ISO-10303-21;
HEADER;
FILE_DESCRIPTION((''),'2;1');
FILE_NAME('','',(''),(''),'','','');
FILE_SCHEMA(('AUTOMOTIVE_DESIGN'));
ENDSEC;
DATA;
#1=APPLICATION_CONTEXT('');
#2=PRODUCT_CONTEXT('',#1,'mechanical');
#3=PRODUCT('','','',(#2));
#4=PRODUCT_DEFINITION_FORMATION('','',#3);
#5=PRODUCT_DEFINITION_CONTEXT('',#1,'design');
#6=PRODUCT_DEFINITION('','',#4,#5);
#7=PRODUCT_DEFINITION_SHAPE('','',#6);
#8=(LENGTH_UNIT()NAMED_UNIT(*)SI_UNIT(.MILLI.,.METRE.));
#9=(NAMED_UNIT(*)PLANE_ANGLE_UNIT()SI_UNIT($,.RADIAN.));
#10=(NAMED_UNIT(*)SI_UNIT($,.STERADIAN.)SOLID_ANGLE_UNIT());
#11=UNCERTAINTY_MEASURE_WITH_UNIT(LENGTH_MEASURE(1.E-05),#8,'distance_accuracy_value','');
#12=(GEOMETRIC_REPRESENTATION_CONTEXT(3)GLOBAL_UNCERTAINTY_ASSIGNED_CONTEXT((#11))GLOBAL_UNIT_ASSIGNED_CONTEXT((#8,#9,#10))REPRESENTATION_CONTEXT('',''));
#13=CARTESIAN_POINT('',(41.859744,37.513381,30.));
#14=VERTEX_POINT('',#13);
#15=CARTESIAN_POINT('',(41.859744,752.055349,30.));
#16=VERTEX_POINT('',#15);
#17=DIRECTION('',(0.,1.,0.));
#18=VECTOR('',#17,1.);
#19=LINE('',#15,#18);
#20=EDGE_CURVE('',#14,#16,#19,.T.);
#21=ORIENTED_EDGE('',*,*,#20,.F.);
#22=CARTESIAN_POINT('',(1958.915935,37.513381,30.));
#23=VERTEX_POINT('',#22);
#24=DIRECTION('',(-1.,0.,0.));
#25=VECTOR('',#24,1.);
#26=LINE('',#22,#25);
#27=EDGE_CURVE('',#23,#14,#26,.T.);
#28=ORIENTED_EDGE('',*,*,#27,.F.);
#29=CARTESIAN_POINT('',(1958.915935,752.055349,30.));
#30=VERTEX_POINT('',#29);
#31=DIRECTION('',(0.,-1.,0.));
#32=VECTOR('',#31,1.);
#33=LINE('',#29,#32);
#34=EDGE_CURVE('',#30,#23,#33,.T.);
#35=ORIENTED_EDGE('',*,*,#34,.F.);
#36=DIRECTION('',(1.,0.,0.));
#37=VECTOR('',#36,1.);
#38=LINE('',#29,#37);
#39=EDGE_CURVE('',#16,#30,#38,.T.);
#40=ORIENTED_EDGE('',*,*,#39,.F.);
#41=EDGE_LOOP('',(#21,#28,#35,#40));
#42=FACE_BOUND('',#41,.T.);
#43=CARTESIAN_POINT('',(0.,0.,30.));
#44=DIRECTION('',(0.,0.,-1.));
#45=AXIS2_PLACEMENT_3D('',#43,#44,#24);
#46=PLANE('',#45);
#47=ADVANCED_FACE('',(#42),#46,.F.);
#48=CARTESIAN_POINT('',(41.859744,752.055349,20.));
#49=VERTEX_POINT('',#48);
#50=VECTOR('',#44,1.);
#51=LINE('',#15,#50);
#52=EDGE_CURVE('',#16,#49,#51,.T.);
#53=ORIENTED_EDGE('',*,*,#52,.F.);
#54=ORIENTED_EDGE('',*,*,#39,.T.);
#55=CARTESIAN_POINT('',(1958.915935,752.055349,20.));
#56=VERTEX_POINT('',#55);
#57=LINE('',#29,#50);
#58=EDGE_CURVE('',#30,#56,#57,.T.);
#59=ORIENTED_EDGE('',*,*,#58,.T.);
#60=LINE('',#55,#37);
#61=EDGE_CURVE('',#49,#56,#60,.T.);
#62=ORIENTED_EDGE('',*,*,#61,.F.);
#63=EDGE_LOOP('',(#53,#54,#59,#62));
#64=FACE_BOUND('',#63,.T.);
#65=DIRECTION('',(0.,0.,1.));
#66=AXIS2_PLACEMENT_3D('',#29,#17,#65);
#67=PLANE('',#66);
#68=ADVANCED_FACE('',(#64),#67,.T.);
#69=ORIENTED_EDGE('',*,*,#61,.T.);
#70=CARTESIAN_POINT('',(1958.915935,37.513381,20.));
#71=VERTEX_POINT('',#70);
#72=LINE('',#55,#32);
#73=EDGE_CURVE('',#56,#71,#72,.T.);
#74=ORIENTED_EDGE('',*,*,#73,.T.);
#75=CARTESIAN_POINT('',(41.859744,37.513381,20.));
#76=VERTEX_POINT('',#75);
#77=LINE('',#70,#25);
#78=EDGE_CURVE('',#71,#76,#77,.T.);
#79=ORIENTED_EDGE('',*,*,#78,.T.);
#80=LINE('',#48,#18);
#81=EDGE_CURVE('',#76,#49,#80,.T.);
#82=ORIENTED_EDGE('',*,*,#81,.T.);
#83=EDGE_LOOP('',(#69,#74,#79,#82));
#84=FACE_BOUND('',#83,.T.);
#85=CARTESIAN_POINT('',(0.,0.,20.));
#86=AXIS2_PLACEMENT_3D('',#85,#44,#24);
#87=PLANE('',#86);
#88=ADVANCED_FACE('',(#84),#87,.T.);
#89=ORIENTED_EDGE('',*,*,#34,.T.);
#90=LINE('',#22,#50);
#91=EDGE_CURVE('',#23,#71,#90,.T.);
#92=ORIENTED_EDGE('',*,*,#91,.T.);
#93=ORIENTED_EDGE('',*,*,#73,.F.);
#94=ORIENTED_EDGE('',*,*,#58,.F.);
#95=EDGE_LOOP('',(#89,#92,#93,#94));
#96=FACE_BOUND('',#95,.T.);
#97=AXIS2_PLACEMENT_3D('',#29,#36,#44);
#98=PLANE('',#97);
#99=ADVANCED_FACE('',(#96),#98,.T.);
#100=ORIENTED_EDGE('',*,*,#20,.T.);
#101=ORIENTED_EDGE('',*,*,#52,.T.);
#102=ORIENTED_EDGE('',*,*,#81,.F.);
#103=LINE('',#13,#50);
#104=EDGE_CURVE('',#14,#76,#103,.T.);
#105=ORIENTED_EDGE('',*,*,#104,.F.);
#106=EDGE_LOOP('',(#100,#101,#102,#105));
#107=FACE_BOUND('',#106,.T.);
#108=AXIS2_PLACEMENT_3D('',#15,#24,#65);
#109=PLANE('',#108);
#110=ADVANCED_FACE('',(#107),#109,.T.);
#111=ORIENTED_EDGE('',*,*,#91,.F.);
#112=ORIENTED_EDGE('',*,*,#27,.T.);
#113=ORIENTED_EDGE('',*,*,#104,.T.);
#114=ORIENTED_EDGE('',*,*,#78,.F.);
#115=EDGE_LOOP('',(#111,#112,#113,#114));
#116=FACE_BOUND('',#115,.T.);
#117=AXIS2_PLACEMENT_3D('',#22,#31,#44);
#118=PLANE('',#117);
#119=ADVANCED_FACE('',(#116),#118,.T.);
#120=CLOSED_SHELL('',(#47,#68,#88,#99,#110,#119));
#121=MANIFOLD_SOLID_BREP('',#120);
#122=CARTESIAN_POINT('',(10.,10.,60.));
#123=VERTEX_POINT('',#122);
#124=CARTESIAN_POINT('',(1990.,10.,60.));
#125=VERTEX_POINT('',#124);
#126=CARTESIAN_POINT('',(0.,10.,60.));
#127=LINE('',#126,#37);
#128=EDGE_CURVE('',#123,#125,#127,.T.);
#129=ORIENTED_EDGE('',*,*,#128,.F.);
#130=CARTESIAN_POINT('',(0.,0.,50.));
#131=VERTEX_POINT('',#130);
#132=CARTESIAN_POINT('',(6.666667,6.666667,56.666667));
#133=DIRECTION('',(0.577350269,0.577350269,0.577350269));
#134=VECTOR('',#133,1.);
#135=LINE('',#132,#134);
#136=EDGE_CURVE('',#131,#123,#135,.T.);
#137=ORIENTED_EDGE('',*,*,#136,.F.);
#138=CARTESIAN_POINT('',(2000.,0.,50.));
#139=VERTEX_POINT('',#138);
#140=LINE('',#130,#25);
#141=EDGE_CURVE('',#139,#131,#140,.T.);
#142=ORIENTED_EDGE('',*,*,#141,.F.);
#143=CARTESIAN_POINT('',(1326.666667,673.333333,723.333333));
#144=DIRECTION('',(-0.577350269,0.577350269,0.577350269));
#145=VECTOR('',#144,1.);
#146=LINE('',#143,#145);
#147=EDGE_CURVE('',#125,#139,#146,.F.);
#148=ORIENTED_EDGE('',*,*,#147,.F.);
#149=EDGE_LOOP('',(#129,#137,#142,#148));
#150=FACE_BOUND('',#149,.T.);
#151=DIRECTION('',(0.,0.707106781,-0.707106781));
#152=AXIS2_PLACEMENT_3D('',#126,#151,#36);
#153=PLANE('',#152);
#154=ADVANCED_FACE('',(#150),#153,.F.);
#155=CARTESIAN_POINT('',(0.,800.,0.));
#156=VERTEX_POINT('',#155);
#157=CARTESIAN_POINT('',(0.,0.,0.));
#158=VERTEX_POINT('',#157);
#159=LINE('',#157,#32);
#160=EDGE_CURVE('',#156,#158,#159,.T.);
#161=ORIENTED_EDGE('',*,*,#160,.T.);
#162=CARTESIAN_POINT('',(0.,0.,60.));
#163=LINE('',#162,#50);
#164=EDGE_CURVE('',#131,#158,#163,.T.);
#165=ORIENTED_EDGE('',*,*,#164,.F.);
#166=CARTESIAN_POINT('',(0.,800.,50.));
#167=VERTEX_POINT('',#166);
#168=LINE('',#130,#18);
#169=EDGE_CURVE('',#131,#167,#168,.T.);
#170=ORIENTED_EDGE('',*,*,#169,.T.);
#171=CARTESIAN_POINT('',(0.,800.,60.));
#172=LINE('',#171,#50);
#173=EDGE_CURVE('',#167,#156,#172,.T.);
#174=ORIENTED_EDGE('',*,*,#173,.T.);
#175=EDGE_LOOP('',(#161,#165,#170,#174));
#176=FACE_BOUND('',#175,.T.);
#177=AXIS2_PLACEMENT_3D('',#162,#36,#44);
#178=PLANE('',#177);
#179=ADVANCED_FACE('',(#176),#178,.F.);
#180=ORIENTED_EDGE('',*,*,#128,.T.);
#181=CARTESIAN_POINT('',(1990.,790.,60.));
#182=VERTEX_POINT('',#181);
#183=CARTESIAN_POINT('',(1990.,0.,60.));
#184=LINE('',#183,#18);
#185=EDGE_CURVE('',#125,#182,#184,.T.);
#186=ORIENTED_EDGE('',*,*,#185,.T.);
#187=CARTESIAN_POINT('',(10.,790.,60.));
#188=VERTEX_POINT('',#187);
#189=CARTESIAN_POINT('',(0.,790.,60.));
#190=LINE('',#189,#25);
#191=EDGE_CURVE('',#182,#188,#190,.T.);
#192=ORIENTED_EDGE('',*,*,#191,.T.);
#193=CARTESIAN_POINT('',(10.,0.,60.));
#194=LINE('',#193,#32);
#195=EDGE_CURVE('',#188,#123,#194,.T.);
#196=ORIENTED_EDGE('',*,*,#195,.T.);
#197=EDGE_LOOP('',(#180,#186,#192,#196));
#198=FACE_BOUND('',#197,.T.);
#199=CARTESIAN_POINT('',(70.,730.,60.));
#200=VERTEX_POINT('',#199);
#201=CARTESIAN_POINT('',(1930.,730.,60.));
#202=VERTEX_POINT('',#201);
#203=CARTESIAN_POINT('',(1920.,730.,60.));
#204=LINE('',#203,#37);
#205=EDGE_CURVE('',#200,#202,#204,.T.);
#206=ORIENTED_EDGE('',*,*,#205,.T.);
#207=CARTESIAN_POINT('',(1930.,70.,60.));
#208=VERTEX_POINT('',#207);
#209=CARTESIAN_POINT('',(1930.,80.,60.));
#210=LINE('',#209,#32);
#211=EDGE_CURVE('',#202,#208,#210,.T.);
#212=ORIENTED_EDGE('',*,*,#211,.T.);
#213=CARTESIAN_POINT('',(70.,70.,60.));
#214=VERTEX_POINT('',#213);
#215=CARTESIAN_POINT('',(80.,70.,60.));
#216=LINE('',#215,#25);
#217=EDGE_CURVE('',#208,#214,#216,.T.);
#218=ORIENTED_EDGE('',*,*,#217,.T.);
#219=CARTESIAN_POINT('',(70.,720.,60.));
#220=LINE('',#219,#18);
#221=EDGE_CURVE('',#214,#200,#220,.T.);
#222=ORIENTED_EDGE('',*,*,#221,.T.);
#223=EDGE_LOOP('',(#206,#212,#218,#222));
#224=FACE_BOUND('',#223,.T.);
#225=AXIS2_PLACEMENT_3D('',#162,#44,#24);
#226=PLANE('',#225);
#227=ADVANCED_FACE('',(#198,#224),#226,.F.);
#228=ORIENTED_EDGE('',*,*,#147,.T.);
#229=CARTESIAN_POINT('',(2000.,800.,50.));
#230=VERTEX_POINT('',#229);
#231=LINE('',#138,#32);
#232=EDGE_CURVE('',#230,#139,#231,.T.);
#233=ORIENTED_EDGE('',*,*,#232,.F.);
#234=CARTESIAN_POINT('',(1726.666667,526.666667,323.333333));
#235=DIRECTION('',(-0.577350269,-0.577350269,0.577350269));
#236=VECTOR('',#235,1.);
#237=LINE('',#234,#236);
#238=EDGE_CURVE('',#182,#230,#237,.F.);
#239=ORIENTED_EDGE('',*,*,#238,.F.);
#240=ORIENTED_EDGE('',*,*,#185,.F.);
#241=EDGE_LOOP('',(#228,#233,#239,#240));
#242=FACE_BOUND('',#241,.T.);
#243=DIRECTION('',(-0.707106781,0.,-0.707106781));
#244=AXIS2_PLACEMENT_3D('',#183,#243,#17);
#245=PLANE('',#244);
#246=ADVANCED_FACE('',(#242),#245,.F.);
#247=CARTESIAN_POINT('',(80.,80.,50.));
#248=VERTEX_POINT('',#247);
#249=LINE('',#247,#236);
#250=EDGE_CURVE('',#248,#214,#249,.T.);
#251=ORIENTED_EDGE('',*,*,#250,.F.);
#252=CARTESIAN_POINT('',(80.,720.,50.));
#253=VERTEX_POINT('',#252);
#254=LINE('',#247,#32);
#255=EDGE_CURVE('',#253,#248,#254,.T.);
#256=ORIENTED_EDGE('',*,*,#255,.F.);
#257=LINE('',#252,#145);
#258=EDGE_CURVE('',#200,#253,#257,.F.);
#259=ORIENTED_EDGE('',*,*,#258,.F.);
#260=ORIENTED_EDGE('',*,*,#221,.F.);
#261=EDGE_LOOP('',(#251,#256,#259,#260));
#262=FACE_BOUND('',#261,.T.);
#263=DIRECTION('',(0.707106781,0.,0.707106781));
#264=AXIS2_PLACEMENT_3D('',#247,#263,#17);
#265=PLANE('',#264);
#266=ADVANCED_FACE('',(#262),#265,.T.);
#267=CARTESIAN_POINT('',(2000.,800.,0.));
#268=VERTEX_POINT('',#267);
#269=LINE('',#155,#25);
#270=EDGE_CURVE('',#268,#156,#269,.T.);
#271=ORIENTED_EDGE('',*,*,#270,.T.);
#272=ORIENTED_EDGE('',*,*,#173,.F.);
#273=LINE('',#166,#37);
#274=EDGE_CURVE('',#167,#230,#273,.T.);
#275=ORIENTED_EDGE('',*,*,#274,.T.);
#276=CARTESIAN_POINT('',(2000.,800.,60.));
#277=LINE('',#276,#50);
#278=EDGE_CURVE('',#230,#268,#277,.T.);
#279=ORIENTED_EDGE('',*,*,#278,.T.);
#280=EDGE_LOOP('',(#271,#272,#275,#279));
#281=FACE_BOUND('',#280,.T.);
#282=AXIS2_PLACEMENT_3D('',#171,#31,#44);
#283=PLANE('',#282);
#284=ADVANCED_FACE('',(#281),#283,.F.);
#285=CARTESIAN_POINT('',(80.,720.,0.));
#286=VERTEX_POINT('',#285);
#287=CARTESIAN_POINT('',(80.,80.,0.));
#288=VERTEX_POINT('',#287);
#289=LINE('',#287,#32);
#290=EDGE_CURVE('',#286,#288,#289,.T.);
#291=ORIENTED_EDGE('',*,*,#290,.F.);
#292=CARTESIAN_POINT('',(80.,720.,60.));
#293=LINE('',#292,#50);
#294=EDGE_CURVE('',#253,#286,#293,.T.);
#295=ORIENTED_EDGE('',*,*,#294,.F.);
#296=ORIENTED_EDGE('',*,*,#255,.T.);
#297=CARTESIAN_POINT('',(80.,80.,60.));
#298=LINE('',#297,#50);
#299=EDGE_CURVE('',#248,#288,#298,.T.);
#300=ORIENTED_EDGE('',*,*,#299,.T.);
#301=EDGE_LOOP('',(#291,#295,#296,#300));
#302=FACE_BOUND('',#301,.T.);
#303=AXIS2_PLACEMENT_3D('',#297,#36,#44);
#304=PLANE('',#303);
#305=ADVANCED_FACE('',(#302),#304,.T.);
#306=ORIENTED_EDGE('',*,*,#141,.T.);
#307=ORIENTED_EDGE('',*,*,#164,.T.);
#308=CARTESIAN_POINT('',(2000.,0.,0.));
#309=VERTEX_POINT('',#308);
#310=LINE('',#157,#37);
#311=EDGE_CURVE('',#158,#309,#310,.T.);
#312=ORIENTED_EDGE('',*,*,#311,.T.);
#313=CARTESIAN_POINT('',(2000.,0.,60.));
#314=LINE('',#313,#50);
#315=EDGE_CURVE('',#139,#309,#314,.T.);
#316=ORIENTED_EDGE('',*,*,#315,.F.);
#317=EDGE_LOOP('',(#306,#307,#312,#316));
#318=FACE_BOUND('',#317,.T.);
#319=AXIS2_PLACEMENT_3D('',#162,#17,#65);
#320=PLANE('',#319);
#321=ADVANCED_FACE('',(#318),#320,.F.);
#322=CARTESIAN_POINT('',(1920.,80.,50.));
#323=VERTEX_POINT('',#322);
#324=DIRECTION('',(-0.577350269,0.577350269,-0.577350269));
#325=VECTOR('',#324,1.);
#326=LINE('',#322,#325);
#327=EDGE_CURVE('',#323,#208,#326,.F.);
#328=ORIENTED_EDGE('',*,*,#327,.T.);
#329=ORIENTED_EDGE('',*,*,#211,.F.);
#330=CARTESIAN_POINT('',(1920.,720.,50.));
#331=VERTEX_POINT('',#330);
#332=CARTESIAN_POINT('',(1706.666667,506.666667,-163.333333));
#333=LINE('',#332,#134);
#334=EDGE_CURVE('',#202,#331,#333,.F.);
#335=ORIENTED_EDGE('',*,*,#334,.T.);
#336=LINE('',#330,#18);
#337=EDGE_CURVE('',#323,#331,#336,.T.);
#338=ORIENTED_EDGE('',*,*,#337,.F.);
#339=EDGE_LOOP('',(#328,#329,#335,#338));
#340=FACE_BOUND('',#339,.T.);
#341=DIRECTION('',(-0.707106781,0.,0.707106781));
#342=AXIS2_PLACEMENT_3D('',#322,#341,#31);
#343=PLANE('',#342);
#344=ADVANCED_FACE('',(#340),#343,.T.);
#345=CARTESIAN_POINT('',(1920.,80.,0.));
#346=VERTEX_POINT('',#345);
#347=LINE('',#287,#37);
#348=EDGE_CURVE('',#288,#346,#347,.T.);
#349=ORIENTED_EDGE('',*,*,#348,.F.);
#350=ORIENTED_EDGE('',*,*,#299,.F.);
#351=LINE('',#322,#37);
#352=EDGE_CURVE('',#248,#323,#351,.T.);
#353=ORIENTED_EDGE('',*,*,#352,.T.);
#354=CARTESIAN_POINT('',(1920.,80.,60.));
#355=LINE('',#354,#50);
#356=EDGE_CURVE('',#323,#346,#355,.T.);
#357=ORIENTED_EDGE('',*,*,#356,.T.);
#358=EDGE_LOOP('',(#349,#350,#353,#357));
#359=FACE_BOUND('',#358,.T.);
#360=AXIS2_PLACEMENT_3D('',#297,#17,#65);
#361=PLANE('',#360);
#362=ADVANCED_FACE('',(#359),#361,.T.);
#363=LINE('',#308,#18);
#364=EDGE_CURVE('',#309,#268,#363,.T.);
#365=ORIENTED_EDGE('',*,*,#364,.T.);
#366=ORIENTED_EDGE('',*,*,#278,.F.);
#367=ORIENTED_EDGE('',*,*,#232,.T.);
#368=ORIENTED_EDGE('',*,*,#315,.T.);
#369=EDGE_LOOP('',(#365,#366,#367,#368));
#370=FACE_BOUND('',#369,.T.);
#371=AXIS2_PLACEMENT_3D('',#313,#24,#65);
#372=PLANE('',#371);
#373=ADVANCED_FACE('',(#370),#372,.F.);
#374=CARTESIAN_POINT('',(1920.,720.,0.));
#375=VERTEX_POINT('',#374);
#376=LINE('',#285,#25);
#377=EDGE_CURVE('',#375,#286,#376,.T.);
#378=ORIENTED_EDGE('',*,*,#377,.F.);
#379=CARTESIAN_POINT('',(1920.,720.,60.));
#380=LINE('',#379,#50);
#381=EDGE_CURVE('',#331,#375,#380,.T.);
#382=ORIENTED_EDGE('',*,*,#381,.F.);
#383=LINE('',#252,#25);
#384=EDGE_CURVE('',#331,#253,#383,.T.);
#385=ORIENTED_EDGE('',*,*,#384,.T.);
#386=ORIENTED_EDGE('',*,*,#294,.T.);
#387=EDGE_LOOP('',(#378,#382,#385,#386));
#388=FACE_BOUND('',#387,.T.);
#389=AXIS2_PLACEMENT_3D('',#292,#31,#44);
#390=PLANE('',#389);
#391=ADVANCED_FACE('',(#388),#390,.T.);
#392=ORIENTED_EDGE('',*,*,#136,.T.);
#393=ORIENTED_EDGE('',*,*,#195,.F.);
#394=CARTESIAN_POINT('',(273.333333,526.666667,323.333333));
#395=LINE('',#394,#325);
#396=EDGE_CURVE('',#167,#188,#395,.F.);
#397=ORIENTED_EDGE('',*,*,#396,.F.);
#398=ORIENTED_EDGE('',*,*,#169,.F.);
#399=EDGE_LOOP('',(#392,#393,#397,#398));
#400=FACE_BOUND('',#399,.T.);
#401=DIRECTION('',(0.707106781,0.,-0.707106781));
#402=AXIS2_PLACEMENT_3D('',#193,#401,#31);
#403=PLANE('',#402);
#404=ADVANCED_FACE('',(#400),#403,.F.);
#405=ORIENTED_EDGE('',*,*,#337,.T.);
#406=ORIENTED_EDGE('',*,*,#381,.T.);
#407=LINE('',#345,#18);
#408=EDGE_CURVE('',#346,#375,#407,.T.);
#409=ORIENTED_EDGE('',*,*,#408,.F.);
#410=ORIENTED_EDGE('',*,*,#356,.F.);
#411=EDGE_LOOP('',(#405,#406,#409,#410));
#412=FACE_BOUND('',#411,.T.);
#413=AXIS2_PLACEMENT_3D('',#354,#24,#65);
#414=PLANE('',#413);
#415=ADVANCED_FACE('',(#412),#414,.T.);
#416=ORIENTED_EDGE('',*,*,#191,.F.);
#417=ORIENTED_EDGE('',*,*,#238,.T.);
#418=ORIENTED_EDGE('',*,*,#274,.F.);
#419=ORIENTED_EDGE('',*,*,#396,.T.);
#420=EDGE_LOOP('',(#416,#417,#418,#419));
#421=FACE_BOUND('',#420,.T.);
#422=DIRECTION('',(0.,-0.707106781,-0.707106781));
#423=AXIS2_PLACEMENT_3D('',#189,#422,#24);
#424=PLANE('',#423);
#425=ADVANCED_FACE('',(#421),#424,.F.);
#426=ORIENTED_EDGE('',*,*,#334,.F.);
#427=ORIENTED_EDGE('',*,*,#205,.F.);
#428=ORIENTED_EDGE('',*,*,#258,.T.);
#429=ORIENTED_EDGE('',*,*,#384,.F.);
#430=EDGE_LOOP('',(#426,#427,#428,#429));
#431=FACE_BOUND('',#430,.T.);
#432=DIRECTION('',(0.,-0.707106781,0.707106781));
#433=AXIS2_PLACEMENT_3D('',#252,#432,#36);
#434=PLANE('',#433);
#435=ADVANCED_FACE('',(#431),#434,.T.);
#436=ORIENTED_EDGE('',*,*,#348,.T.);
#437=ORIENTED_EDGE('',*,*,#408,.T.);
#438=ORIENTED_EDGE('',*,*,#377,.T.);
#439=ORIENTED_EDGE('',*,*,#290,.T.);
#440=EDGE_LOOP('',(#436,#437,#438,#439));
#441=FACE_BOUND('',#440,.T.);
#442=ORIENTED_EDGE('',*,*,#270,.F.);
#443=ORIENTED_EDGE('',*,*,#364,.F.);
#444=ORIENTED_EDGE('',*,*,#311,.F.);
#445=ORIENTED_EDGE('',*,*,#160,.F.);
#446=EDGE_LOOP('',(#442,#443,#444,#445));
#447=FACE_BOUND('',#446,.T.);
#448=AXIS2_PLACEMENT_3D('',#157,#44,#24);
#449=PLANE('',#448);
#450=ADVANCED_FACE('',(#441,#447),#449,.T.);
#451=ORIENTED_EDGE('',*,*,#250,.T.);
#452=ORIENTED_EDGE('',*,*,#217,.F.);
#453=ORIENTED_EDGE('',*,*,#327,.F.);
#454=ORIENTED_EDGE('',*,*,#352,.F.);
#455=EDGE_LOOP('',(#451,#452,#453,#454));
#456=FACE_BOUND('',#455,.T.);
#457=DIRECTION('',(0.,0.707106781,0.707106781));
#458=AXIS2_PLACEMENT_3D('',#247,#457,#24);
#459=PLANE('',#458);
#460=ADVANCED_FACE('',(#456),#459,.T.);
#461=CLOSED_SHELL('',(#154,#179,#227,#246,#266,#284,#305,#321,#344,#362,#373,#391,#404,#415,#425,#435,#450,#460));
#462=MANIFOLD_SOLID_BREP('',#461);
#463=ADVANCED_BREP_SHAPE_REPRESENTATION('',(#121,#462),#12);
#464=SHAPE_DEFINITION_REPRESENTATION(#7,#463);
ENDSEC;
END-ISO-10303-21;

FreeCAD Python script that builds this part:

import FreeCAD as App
import Part
import Sketcher
from FreeCAD import Vector


def edges_at(feature, points):
    """Names of the edges that pass closest to the given points."""
    edges = feature.Shape.Edges
    near = lambda p: min(range(len(edges)), key=lambda i: edges[i].distToShape(Part.Vertex(*p))[0])
    return sorted({f"Edge{near(p) + 1}" for p in points})


def add_polygon(sketch, points):
    """Adds a closed chain of lines whose ends are joined by coincident constraints."""
    first, n = sketch.GeometryCount, len(points)
    for a, b in zip(points, points[1:] + points[:1]):
        sketch.addGeometry(Part.LineSegment(App.Vector(*a, 0), App.Vector(*b, 0)), False)
    for i in range(n):
        sketch.addConstraint(Sketcher.Constraint("Coincident", first + i, 2, first + (i + 1) % n, 1))

doc = App.newDocument("Part")
params = doc.addObject("Spreadsheet::Sheet", "Params")
for row, (alias, value) in enumerate([
    ("sketch1_width", "2000 mm"),
    ("sketch1_width2", "1840 mm"),
    ("sketch1_height", "800 mm"),
    ("sketch1_height2", "640 mm"),
    ("pad1_length", "60 mm"),
    ("chamfer_size", "10 mm"),
    ("pad2_length", "10 mm"),
], start=1):
    params.set(f"A{row}", alias)
    params.set(f"B{row}", "=" + value)
    params.setAlias(f"B{row}", alias)

body = doc.addObject("PartDesign::Body", "Body")

sketch1 = body.newObject("Sketcher::SketchObject", "Sketch")
sketch1.AttachmentSupport = (doc.getObject("XY_Plane"), [""])
sketch1.MapMode = "FlatFace"
add_polygon(sketch1, [(0, 800), (0, 0), (2000, 0), (2000, 800)])
add_polygon(sketch1, [(1920, 80), (80, 80), (80, 720), (1920, 720)])
sketch1.addConstraint(Sketcher.Constraint("Vertical", 0))
sketch1.addConstraint(Sketcher.Constraint("Horizontal", 1))
sketch1.addConstraint(Sketcher.Constraint("Vertical", 2))
sketch1.addConstraint(Sketcher.Constraint("Horizontal", 3))
sketch1.addConstraint(Sketcher.Constraint("Horizontal", 4))
sketch1.addConstraint(Sketcher.Constraint("Vertical", 5))
sketch1.addConstraint(Sketcher.Constraint("Horizontal", 6))
sketch1.addConstraint(Sketcher.Constraint("Vertical", 7))
sketch1.addConstraint(Sketcher.Constraint("Coincident", 0, 2, -1, 1))
sketch1.addConstraint(Sketcher.Constraint("DistanceX", 1, 1, 1, 2, 2000.0))
sketch1.addConstraint(Sketcher.Constraint("DistanceX", 4, 2, 4, 1, 1840.0))
sketch1.addConstraint(Sketcher.Constraint("DistanceY", 0, 2, 0, 1, 800.0))
sketch1.addConstraint(Sketcher.Constraint("DistanceY", 5, 1, 5, 2, 640.0))
sketch1.addConstraint(Sketcher.Constraint("DistanceX", -1, 1, 4, 2, 80.0))
sketch1.addConstraint(Sketcher.Constraint("DistanceY", -1, 1, 4, 2, 80.0))
sketch1.setExpression("Constraints[17]", "Params.sketch1_width")
sketch1.setExpression("Constraints[18]", "Params.sketch1_width2")
sketch1.setExpression("Constraints[19]", "Params.sketch1_height")
sketch1.setExpression("Constraints[20]", "Params.sketch1_height2")
pad1 = body.newObject("PartDesign::Pad", "Pad")
pad1.Profile = sketch1
pad1.setExpression("Length", "Params.pad1_length")
doc.recompute()

chamfer = body.newObject("PartDesign::Chamfer", "Chamfer")
chamfer.Base = (pad1, edges_at(pad1, [
    (2000, 400, 60),
    (1000, 80, 60),
    (1000, 800, 60),
    (1920, 400, 60),
    (1000, 720, 60),
    (80, 400, 60),
    (0, 400, 60),
    (1000, 0, 60),
]))
chamfer.setExpression("Size", "Params.chamfer_size")
body2 = doc.addObject("PartDesign::Body", "Body001")

sketch2 = body2.newObject("Sketcher::SketchObject", "Sketch001")
sketch2.AttachmentSupport = (doc.getObject("XY_Plane001"), [""])
sketch2.MapMode = "FlatFace"
sketch2.AttachmentOffset = App.Placement(Vector(0, 0, 20), App.Rotation())
add_polygon(sketch2, [(1959, 752), (1959, 38), (42, 38), (42, 752)])
sketch2.addConstraint(Sketcher.Constraint("Vertical", 0))
sketch2.addConstraint(Sketcher.Constraint("Horizontal", 1))
sketch2.addConstraint(Sketcher.Constraint("Vertical", 2))
sketch2.addConstraint(Sketcher.Constraint("Horizontal", 3))
sketch2.addConstraint(Sketcher.Constraint("DistanceX", 1, 2, 1, 1, 1917.056191))
sketch2.addConstraint(Sketcher.Constraint("DistanceY", 0, 2, 0, 1, 714.541967))
sketch2.addConstraint(Sketcher.Constraint("DistanceY", -1, 1, 0, 2, 37.513381))
sketch2.addConstraint(Sketcher.Constraint("DistanceX", -1, 1, 0, 2, 1958.915935))
pad2 = body2.newObject("PartDesign::Pad", "Pad001")
pad2.Profile = sketch2
pad2.setExpression("Length", "Params.pad2_length")

doc.recompute()
